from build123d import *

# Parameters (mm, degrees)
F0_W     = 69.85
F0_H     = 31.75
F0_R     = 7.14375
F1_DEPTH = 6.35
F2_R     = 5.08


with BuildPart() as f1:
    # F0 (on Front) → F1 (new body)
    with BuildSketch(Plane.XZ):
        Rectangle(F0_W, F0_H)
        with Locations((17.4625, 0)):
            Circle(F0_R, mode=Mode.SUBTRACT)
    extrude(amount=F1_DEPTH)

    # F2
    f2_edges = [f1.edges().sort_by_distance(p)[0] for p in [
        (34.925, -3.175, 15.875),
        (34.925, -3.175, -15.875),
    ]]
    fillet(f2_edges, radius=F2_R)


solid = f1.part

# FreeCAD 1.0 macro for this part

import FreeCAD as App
import Part
import Sketcher

V = App.Vector
Q = App.Units.Quantity


def edges_at(feature, points):
    """Names of the edges that pass closest to the given points."""
    edges = feature.Shape.Edges
    near = lambda p: min(range(len(edges)), key=lambda i: edges[i].distToShape(Part.Vertex(*p))[0])
    return sorted({f"Edge{near(p) + 1}" for p in points})

doc = App.newDocument("Part")
body = doc.addObject("PartDesign::Body", "Body")

sketch1 = doc.addObject("Sketcher::SketchObject", "Sketch")
body.addObject(sketch1)
sketch1.AttachmentSupport = (doc.XZ_Plane, [""])
sketch1.MapMode = "FlatFace"
sketch1.addGeometry([
    Part.LineSegment(V(-35, 16, 0), V(-35, -16, 0)),
    Part.LineSegment(V(-35, -16, 0), V(35, -16, 0)),
    Part.LineSegment(V(35, -16, 0), V(35, 16, 0)),
    Part.LineSegment(V(35, 16, 0), V(-35, 16, 0)),
    Part.Circle(V(17, 0, 0), V(0, 0, 1), 7),
], False)
sketch1.addConstraint([
    Sketcher.Constraint("Coincident", 0, 2, 1, 1),
    Sketcher.Constraint("Coincident", 1, 2, 2, 1),
    Sketcher.Constraint("Coincident", 2, 2, 3, 1),
    Sketcher.Constraint("Coincident", 3, 2, 0, 1),
    Sketcher.Constraint("Vertical", 0),
    Sketcher.Constraint("Horizontal", 1),
    Sketcher.Constraint("Vertical", 2),
    Sketcher.Constraint("Horizontal", 3),
    Sketcher.Constraint("Symmetric", 0, 2, 2, 2, -1, 1),
    Sketcher.Constraint("PointOnObject", 4, 3, -1),
    Sketcher.Constraint("Diameter", 4, Q("0.5625 in")),
    Sketcher.Constraint("DistanceX", 1, 1, 1, 2, Q("2.75 in")),
    Sketcher.Constraint("DistanceY", 0, 2, 0, 1, Q("1.25 in")),
    Sketcher.Constraint("DistanceX", -1, 1, 4, 3, Q("0.6875 in")),
])
pad1 = doc.addObject("PartDesign::Pad", "Pad")
body.addObject(pad1)
pad1.Profile = sketch1
pad1.Length = Q("0.25 in")
doc.recompute()

fillet = doc.addObject("PartDesign::Fillet", "Fillet")
body.addObject(fillet)
fillet.Base = (pad1, edges_at(pad1, [(34.925, -3.175, 15.875), (34.925, -3.175, -15.875)]))
fillet.Radius = Q("0.2 in")

doc.recompute()
